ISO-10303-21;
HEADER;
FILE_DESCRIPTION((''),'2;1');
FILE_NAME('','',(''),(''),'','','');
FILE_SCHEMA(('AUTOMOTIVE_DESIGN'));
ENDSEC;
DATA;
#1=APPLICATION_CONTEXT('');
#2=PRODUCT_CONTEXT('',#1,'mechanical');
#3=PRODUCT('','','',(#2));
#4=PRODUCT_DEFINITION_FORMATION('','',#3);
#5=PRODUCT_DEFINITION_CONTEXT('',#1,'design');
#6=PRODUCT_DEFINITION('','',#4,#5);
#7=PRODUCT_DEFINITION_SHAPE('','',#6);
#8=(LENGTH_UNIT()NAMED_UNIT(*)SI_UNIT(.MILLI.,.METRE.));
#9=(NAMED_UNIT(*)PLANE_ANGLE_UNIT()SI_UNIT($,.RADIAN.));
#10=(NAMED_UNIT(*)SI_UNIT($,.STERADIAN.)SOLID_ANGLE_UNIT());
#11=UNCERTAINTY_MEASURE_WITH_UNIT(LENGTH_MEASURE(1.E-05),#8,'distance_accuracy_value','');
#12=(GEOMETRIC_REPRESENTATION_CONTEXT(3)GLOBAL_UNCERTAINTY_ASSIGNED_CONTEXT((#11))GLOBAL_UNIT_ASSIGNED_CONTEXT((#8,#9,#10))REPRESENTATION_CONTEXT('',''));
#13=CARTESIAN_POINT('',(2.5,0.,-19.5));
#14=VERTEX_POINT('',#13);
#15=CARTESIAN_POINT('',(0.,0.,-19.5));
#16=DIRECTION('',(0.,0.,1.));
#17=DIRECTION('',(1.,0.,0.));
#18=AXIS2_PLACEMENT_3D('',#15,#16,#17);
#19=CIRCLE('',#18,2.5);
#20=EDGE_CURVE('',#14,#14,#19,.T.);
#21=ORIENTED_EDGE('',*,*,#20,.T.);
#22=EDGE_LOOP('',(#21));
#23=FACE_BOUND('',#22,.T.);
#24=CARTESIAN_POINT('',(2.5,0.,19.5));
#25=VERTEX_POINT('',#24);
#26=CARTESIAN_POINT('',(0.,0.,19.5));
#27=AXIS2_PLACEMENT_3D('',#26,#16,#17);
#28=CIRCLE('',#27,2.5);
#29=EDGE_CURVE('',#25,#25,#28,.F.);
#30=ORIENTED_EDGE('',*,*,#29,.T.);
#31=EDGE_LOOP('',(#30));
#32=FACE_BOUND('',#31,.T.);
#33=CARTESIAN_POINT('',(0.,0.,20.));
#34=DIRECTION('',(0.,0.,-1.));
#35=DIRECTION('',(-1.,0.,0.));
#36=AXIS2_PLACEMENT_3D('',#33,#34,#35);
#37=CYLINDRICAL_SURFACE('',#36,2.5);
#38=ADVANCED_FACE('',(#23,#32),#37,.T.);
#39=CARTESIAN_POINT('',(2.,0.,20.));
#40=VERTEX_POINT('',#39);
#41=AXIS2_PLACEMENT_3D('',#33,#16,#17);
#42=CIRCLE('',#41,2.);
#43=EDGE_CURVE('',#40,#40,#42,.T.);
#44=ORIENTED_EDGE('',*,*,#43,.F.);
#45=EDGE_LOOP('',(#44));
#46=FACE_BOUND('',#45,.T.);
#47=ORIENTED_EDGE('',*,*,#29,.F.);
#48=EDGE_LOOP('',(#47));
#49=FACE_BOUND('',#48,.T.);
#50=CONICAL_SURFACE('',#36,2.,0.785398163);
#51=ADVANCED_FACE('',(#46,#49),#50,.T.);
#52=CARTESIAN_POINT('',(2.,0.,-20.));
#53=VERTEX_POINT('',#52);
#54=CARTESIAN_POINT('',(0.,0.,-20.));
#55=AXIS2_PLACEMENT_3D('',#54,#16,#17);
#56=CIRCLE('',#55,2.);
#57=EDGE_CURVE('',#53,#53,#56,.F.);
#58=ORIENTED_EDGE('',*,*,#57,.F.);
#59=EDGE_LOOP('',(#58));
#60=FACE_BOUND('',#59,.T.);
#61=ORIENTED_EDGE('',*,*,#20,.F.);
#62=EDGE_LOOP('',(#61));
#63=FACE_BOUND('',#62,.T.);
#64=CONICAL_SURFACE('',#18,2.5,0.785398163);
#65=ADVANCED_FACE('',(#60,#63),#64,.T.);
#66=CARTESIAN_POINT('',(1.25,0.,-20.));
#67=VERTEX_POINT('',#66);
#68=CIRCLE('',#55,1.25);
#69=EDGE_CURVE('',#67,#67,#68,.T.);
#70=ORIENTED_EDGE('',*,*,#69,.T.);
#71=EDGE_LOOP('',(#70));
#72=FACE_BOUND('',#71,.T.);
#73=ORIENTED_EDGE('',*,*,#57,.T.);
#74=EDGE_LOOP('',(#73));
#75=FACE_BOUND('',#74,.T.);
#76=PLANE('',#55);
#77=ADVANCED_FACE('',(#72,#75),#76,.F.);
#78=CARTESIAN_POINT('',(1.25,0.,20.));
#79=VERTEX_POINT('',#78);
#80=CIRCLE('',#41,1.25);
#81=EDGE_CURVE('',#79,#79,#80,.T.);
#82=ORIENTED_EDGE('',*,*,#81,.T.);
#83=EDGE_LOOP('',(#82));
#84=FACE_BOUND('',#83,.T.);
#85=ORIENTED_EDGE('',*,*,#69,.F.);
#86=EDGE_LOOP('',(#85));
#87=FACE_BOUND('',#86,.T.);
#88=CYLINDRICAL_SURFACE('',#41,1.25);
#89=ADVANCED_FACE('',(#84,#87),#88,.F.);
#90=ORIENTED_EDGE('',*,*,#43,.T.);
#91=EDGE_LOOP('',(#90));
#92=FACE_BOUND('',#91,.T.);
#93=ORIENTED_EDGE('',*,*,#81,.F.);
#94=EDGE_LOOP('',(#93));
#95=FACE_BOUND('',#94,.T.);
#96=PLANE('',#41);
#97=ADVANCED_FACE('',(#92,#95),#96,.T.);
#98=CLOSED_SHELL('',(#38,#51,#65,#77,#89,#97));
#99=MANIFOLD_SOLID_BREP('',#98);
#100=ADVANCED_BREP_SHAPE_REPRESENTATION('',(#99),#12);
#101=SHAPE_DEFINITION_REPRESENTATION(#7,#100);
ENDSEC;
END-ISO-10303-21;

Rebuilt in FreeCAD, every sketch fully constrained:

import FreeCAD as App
import Part
import Sketcher


def edges_at(feature, points):
    """Names of the edges that pass closest to the given points."""
    edges = feature.Shape.Edges
    near = lambda p: min(range(len(edges)), key=lambda i: edges[i].distToShape(Part.Vertex(*p))[0])
    return sorted({f"Edge{near(p) + 1}" for p in points})

doc = App.newDocument("Part")
body = doc.addObject("PartDesign::Body", "Body")

# Sketch on XY plane
sketch1 = body.newObject("Sketcher::SketchObject", "Sketch")
sketch1.AttachmentSupport = (doc.getObject("XY_Plane"), [""])
sketch1.MapMode = "FlatFace"
sketch1.addGeometry(Part.Circle(App.Vector(0, 0, 0), App.Vector(0, 0, 1), 2.5), False)
sketch1.addConstraint([
    Sketcher.Constraint("Coincident", 0, 3, -1, 1),
    Sketcher.Constraint("Diameter", 0, 5.0),
])
pad1 = body.newObject("PartDesign::Pad", "Pad")
pad1.Profile = sketch1
pad1.Length = 40
pad1.Midplane = True

# Sketch on XY plane
sketch2 = body.newObject("Sketcher::SketchObject", "Sketch001")
sketch2.AttachmentSupport = (doc.getObject("XY_Plane"), [""])
sketch2.MapMode = "FlatFace"
sketch2.AttachmentOffset = App.Placement(App.Vector(0, 0, 20), App.Rotation())
sketch2.addGeometry(Part.Circle(App.Vector(0, 0, 0), App.Vector(0, 0, 1), 1.2), False)
sketch2.addConstraint([
    Sketcher.Constraint("Coincident", 0, 3, -1, 1),
    Sketcher.Constraint("Diameter", 0, 2.5),
])
doc.recompute()
hole = body.newObject("PartDesign::Hole", "Hole")
hole.Profile = sketch2
hole.ThreadType = "None"
hole.Diameter = 2.5
hole.DepthType = "ThroughAll"
doc.recompute()

chamfer = body.newObject("PartDesign::Chamfer", "Chamfer")
chamfer.Base = (hole, edges_at(hole, [(-2.5, 0, -20), (-2.5, 0, 20)]))
chamfer.Size = 0.5

doc.recompute()
